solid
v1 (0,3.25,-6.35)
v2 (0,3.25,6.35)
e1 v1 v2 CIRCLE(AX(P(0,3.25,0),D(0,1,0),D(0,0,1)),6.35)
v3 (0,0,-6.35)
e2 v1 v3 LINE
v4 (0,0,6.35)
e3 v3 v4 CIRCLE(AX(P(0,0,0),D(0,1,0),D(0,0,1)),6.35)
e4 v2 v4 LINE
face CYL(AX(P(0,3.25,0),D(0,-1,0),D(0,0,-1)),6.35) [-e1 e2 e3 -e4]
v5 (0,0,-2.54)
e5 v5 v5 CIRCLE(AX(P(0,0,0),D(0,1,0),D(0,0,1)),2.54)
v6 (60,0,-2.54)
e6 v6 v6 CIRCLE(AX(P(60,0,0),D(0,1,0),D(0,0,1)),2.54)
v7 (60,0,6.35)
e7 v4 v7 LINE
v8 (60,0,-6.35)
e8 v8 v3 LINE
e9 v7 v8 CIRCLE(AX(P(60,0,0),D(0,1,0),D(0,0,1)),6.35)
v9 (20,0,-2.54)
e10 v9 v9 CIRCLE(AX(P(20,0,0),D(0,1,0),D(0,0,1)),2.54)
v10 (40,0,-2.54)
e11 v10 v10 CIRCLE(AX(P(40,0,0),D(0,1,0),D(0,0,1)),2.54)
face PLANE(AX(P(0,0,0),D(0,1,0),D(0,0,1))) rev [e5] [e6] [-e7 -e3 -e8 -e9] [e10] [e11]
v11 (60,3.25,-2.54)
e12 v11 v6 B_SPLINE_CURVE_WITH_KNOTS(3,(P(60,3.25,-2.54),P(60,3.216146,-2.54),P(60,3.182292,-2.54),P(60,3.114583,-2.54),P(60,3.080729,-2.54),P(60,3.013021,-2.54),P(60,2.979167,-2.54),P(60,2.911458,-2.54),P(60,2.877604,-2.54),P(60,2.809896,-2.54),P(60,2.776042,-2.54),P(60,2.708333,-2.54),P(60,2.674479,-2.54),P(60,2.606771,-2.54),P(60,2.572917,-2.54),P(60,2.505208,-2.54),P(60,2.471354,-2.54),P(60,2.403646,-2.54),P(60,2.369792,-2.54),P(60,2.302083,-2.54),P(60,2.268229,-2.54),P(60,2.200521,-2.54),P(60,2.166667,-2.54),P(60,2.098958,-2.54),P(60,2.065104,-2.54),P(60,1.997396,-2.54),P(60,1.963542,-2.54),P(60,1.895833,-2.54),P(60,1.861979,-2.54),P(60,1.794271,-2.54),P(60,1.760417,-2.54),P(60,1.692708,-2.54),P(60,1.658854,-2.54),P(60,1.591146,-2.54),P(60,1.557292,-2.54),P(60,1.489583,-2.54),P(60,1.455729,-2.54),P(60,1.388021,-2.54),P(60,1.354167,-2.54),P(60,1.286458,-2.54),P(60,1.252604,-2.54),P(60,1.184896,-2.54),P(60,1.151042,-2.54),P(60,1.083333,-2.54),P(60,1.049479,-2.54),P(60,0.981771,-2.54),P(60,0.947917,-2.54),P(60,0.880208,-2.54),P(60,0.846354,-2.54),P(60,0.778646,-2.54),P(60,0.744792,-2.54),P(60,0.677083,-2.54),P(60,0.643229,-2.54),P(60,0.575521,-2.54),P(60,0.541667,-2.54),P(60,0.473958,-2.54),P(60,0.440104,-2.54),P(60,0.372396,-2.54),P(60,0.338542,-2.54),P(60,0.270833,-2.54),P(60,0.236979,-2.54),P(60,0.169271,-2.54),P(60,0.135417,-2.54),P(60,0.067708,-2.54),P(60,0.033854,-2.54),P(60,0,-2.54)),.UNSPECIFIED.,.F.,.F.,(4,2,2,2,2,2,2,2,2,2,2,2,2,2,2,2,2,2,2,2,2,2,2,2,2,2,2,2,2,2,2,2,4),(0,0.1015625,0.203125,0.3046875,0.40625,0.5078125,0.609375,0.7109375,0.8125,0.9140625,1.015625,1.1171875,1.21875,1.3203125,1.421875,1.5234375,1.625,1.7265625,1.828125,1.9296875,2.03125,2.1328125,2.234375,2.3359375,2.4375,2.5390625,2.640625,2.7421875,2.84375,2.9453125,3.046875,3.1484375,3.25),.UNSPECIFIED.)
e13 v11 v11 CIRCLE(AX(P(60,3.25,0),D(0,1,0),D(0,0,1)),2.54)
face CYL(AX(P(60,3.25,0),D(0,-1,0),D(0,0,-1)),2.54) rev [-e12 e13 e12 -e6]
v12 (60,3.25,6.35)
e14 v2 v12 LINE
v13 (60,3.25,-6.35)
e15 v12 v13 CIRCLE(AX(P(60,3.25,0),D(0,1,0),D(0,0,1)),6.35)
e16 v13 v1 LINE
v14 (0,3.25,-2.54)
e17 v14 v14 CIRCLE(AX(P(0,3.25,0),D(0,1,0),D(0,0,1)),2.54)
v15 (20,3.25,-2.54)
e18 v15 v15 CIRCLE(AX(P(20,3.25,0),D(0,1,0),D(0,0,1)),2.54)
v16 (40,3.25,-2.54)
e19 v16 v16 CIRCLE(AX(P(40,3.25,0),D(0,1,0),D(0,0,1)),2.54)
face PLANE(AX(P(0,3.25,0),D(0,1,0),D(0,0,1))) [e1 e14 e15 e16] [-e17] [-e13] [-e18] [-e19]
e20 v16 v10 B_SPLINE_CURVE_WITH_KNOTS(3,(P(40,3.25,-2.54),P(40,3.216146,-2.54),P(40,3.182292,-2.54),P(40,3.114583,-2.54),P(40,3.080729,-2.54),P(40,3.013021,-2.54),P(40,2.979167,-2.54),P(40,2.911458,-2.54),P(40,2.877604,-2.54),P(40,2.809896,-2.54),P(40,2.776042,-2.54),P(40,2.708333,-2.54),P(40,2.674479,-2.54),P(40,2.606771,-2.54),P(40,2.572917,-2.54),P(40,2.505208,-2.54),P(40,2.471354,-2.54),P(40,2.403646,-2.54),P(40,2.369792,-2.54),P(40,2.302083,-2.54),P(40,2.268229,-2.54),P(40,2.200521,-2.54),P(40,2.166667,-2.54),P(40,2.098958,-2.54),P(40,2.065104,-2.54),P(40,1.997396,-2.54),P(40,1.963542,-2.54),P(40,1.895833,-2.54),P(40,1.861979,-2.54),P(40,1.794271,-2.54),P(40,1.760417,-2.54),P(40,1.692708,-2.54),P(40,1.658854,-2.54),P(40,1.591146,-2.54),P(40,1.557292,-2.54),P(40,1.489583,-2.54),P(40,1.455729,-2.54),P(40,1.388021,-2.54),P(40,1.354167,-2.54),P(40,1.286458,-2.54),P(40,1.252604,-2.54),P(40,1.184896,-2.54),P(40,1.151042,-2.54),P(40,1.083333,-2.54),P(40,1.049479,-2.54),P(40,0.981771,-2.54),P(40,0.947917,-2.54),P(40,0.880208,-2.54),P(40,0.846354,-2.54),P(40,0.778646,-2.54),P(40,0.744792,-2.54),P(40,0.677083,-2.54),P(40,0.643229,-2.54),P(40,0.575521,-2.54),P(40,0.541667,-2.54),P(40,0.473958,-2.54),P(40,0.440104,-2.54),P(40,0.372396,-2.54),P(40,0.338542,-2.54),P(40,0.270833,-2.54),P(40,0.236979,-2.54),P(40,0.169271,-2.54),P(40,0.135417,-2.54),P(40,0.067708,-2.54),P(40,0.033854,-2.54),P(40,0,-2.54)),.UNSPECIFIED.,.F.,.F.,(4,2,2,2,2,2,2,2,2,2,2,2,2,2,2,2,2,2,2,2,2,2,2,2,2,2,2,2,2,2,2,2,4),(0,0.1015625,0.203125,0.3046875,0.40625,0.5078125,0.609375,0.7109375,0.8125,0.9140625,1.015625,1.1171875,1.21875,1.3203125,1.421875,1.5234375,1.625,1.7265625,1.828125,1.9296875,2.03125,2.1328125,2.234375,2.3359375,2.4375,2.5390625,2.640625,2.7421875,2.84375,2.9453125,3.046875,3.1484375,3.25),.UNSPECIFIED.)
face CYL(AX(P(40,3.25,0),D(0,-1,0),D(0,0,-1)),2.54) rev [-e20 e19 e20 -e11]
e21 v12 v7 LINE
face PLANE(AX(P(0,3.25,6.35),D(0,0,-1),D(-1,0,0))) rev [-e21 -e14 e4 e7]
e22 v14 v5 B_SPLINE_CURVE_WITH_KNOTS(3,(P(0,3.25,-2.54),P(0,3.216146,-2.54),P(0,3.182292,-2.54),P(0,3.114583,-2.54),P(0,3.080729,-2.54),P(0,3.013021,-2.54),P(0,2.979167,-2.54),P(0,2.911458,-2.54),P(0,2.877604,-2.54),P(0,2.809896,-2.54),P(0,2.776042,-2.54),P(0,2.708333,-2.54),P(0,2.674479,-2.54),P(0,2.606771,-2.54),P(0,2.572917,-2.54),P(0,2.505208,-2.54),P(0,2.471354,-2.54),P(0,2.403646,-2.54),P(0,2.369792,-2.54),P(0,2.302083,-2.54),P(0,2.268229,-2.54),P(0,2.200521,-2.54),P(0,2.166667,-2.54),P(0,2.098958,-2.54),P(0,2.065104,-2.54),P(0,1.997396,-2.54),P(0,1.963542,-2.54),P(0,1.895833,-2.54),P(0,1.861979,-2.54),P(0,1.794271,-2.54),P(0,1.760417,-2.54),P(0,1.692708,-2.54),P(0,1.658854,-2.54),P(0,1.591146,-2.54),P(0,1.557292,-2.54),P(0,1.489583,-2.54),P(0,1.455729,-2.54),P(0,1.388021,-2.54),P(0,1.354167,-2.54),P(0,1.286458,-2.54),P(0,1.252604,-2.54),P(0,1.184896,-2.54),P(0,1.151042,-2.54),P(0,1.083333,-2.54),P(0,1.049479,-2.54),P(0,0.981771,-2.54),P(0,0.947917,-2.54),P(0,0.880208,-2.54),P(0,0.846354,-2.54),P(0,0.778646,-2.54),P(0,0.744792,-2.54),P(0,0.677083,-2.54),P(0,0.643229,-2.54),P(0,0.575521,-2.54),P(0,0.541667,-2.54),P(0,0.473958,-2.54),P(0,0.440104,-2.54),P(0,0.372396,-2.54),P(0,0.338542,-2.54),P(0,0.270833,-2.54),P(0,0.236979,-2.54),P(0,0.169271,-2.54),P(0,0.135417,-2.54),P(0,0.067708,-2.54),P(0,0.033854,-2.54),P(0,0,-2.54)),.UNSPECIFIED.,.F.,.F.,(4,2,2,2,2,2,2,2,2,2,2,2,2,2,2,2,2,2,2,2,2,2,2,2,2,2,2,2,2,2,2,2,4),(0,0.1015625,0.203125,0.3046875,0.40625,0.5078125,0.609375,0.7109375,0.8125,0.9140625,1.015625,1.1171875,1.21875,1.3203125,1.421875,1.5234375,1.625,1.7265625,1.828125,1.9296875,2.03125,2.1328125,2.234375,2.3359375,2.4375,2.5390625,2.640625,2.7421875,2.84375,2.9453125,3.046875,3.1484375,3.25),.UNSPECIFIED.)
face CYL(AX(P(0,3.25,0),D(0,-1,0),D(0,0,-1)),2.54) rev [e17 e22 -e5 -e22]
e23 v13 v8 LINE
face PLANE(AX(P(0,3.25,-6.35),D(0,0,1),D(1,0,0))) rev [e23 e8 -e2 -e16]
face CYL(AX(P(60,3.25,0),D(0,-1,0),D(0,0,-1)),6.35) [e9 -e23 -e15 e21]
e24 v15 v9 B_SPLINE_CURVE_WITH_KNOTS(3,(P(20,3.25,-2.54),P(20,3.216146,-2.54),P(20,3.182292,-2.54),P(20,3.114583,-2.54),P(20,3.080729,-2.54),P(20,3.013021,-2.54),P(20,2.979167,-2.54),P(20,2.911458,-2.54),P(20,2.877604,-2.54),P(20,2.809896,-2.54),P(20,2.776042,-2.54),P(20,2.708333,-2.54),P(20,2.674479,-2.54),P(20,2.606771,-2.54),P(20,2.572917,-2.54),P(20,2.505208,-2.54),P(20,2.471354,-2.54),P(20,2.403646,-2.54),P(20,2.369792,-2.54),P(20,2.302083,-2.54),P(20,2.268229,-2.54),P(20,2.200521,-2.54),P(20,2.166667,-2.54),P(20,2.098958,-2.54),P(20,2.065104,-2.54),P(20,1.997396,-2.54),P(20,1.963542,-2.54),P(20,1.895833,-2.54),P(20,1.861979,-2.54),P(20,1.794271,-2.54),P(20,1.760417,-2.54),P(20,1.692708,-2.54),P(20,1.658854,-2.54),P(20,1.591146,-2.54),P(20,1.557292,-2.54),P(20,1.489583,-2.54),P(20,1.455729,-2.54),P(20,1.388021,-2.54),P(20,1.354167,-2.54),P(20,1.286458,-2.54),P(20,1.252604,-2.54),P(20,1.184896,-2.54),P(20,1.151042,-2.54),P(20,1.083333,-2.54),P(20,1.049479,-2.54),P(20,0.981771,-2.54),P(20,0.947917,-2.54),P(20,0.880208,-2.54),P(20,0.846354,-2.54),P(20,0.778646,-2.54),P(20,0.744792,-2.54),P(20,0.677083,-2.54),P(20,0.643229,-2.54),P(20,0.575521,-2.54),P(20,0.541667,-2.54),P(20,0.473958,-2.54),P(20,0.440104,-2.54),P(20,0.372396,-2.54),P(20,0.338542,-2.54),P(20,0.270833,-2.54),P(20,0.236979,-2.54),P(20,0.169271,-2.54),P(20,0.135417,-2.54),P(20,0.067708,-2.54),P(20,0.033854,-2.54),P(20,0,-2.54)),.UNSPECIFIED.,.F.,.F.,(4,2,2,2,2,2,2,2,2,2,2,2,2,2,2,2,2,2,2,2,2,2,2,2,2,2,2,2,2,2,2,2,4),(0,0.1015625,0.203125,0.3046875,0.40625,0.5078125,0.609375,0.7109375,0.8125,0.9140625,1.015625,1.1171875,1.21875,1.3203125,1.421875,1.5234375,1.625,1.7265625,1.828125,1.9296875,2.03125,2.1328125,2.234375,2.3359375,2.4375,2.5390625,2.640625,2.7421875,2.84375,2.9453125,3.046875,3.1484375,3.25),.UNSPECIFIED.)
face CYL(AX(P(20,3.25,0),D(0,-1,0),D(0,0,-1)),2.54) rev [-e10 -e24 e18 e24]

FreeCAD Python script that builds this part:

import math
import FreeCAD as App
import Part
import Sketcher
Q = App.Units.Quantity

doc = App.newDocument("Part")
body = doc.addObject("PartDesign::Body", "Body")

# Sketch on XZ plane
sketch1 = body.newObject("Sketcher::SketchObject", "Sketch")
sketch1.AttachmentSupport = (doc.getObject("XZ_Plane"), [""])
sketch1.MapMode = "FlatFace"
sketch1.addGeometry(Part.LineSegment(App.Vector(60, -6.35, 0), App.Vector(0, -6.35, 0)), False)
sketch1.addGeometry(Part.ArcOfCircle(Part.Circle(App.Vector(0, 0, 0), App.Vector(0, 0, 1), 6.35), math.radians(90), math.radians(270)), False)
sketch1.addGeometry(Part.LineSegment(App.Vector(0, 6.35, 0), App.Vector(60, 6.35, 0)), False)
sketch1.addGeometry(Part.ArcOfCircle(Part.Circle(App.Vector(60, 0, 0), App.Vector(0, 0, 1), 6.35), math.radians(-90), math.radians(90)), False)
sketch1.addGeometry(Part.Circle(App.Vector(60, 0, 0), App.Vector(0, 0, 1), 2.54), False)
sketch1.addGeometry(Part.Circle(App.Vector(40, 0, 0), App.Vector(0, 0, 1), 2.54), False)
sketch1.addGeometry(Part.Circle(App.Vector(20, 0, 0), App.Vector(0, 0, 1), 2.54), False)
sketch1.addGeometry(Part.Circle(App.Vector(0, 0, 0), App.Vector(0, 0, 1), 2.54), False)
sketch1.addConstraint(Sketcher.Constraint("Tangent", 0, 2, 1, 2))
sketch1.addConstraint(Sketcher.Constraint("Tangent", 1, 1, 2, 1))
sketch1.addConstraint(Sketcher.Constraint("Tangent", 2, 2, 3, 2))
sketch1.addConstraint(Sketcher.Constraint("Tangent", 3, 1, 0, 1))
sketch1.addConstraint(Sketcher.Constraint("Horizontal", 0))
sketch1.addConstraint(Sketcher.Constraint("Horizontal", 2))
sketch1.addConstraint(Sketcher.Constraint("Coincident", 1, 3, -1, 1))
sketch1.addConstraint(Sketcher.Constraint("Coincident", 7, 3, -1, 1))
sketch1.addConstraint(Sketcher.Constraint("Coincident", 4, 3, 3, 3))
sketch1.addConstraint(Sketcher.Constraint("Equal", 4, 5))
sketch1.addConstraint(Sketcher.Constraint("Equal", 5, 6))
sketch1.addConstraint(Sketcher.Constraint("Equal", 6, 7))
sketch1.addConstraint(Sketcher.Constraint("PointOnObject", 5, 3, -1))
sketch1.addConstraint(Sketcher.Constraint("PointOnObject", 6, 3, -1))
sketch1.addConstraint(Sketcher.Constraint("Diameter", 4, Q("0.2 in")))
sketch1.addConstraint(Sketcher.Constraint("Radius", 1, Q("0.25 in")))
sketch1.addConstraint(Sketcher.Constraint("DistanceX", 0, 2, 0, 1, 60.0))
sketch1.addConstraint(Sketcher.Constraint("DistanceX", -1, 1, 5, 3, 40.0))
sketch1.addConstraint(Sketcher.Constraint("DistanceX", -1, 1, 6, 3, 20.0))
pad1 = body.newObject("PartDesign::Pad", "Pad")
pad1.Profile = sketch1
pad1.Length = 3.25
pad1.Reversed = True

doc.recompute()
